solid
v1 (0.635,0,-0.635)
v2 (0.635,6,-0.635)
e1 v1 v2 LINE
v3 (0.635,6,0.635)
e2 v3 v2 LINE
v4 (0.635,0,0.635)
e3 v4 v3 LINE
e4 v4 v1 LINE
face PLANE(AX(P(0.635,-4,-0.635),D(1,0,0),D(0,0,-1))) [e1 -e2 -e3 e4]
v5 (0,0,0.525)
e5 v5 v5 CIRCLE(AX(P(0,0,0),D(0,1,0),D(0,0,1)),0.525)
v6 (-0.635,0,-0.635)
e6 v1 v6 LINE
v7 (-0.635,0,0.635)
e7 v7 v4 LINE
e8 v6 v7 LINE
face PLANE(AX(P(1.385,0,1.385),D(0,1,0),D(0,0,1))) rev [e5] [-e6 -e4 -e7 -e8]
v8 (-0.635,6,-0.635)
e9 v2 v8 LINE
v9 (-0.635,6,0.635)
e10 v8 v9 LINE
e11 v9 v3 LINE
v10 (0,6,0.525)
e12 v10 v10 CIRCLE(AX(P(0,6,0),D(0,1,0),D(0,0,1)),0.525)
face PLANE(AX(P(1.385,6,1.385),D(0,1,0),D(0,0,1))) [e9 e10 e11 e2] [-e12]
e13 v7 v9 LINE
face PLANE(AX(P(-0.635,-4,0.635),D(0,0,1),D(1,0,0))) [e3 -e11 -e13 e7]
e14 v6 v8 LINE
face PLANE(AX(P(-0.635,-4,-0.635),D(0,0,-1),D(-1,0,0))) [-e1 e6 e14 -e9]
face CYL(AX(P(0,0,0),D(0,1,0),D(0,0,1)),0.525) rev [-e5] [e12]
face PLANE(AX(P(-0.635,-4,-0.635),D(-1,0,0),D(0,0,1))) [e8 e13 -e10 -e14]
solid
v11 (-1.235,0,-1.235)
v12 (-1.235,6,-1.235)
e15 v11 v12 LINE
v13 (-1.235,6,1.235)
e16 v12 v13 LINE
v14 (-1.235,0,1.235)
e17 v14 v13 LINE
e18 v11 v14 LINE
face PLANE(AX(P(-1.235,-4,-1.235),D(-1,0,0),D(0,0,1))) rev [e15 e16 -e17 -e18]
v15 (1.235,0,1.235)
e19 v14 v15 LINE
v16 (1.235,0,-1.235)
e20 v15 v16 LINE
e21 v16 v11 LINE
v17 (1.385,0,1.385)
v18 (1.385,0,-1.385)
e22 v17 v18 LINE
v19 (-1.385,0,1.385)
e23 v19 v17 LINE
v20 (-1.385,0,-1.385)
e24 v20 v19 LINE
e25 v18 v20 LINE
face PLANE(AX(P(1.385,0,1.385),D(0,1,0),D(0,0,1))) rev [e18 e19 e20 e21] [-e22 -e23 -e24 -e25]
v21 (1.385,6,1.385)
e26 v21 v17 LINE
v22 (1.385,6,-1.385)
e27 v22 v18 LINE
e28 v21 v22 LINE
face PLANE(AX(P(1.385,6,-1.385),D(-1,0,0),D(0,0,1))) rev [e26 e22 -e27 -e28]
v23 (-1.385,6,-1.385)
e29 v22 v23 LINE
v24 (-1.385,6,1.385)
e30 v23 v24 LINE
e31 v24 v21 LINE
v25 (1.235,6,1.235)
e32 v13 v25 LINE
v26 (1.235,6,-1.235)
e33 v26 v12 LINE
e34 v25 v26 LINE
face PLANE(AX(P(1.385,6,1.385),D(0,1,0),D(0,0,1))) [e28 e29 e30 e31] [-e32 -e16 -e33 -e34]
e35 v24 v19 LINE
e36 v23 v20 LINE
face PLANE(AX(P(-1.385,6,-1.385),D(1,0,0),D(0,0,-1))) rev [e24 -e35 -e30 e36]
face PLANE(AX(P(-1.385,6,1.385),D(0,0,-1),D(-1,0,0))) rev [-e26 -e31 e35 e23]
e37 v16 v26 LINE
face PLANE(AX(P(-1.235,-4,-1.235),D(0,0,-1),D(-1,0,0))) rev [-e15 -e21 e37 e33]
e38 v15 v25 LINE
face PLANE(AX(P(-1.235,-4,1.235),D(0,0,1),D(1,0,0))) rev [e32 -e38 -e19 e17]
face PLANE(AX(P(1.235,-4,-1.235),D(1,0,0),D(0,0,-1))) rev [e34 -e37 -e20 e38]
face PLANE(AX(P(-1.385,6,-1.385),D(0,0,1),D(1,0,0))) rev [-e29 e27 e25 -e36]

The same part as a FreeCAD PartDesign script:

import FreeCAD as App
import Part
import Sketcher
Q = App.Units.Quantity


def add_polygon(sketch, points):
    """Adds a closed chain of lines whose ends are joined by coincident constraints."""
    first, n = sketch.GeometryCount, len(points)
    for a, b in zip(points, points[1:] + points[:1]):
        sketch.addGeometry(Part.LineSegment(App.Vector(*a, 0), App.Vector(*b, 0)), False)
    for i in range(n):
        sketch.addConstraint(Sketcher.Constraint("Coincident", first + i, 2, first + (i + 1) % n, 1))

doc = App.newDocument("Part")
params = doc.addObject("Spreadsheet::Sheet", "Params")
for row, (alias, value) in enumerate([
    ("sketch1_width", "2.77 mm"),
    ("pad1_length", "6 mm"),
    ("sketch2_diameter", "1.05 mm"),
    ("sketch3_width", "2.47 mm"),
    ("sketch3_width2", "1.27 mm"),
    ("pocket2_length", "10 mm"),
], start=1):
    params.set(f"A{row}", alias)
    params.set(f"B{row}", "=" + value)
    params.setAlias(f"B{row}", alias)

body = doc.addObject("PartDesign::Body", "Body")
body.AllowCompound = True

sketch1 = body.newObject("Sketcher::SketchObject", "Sketch")
sketch1.AttachmentSupport = (doc.getObject("XZ_Plane"), [""])
sketch1.MapMode = "FlatFace"
add_polygon(sketch1, [(-1.385, -1.385), (-1.385, 1.385), (1.385, 1.385), (1.385, -1.385)])
sketch1.addConstraint(Sketcher.Constraint("Vertical", 0))
sketch1.addConstraint(Sketcher.Constraint("Horizontal", 1))
sketch1.addConstraint(Sketcher.Constraint("Vertical", 2))
sketch1.addConstraint(Sketcher.Constraint("Horizontal", 3))
sketch1.addConstraint(Sketcher.Constraint("Symmetric", 0, 2, 2, 2, -1, 1))
sketch1.addConstraint(Sketcher.Constraint("Equal", 3, 0))
sketch1.addConstraint(Sketcher.Constraint("DistanceX", 1, 1, 1, 2, Q("2.77 mm")))
sketch1.setExpression("Constraints[10]", "Params.sketch1_width")
pad1 = body.newObject("PartDesign::Pad", "Pad")
pad1.Profile = sketch1
pad1.setExpression("Length", "Params.pad1_length")
pad1.Reversed = True

sketch2 = body.newObject("Sketcher::SketchObject", "Sketch001")
sketch2.AttachmentSupport = (doc.getObject("XZ_Plane"), [""])
sketch2.MapMode = "FlatFace"
sketch2.AttachmentOffset = App.Placement(App.Vector(0, 0, -6), App.Rotation())
sketch2.addGeometry(Part.Circle(App.Vector(0, 0, 0), App.Vector(0, 0, 1), 0.525), False)
sketch2.addConstraint(Sketcher.Constraint("Coincident", 0, 3, -1, 1))
sketch2.addConstraint(Sketcher.Constraint("Diameter", 0, Q("1.05 mm")))
sketch2.setExpression("Constraints[1]", "Params.sketch2_diameter")
pocket1 = body.newObject("PartDesign::Pocket", "Pocket")
pocket1.Profile = sketch2
pocket1.Type = "ThroughAll"
pocket1.Reversed = True

sketch3 = body.newObject("Sketcher::SketchObject", "Sketch002")
sketch3.AttachmentSupport = (doc.getObject("XZ_Plane"), [""])
sketch3.MapMode = "FlatFace"
sketch3.AttachmentOffset = App.Placement(App.Vector(0, 0, -6), App.Rotation())
add_polygon(sketch3, [(-1.235, -1.235), (-1.235, 1.235), (1.235, 1.235), (1.235, -1.235)])
add_polygon(sketch3, [(0.635, 0.635), (-0.635, 0.635), (-0.635, -0.635), (0.635, -0.635)])
sketch3.addConstraint(Sketcher.Constraint("Vertical", 0))
sketch3.addConstraint(Sketcher.Constraint("Horizontal", 1))
sketch3.addConstraint(Sketcher.Constraint("Vertical", 2))
sketch3.addConstraint(Sketcher.Constraint("Horizontal", 3))
sketch3.addConstraint(Sketcher.Constraint("Horizontal", 4))
sketch3.addConstraint(Sketcher.Constraint("Vertical", 5))
sketch3.addConstraint(Sketcher.Constraint("Horizontal", 6))
sketch3.addConstraint(Sketcher.Constraint("Vertical", 7))
sketch3.addConstraint(Sketcher.Constraint("Symmetric", 0, 2, 2, 2, -1, 1))
sketch3.addConstraint(Sketcher.Constraint("Symmetric", 4, 2, 6, 2, -1, 1))
sketch3.addConstraint(Sketcher.Constraint("Equal", 3, 0))
sketch3.addConstraint(Sketcher.Constraint("Equal", 6, 5))
sketch3.addConstraint(Sketcher.Constraint("DistanceX", 1, 1, 1, 2, Q("2.47 mm")))
sketch3.addConstraint(Sketcher.Constraint("DistanceX", 4, 2, 4, 1, Q("1.27 mm")))
sketch3.setExpression("Constraints[20]", "Params.sketch3_width")
sketch3.setExpression("Constraints[21]", "Params.sketch3_width2")
pocket2 = body.newObject("PartDesign::Pocket", "Pocket001")
pocket2.Profile = sketch3
pocket2.setExpression("Length", "Params.pocket2_length")
pocket2.Reversed = True

doc.recompute()
